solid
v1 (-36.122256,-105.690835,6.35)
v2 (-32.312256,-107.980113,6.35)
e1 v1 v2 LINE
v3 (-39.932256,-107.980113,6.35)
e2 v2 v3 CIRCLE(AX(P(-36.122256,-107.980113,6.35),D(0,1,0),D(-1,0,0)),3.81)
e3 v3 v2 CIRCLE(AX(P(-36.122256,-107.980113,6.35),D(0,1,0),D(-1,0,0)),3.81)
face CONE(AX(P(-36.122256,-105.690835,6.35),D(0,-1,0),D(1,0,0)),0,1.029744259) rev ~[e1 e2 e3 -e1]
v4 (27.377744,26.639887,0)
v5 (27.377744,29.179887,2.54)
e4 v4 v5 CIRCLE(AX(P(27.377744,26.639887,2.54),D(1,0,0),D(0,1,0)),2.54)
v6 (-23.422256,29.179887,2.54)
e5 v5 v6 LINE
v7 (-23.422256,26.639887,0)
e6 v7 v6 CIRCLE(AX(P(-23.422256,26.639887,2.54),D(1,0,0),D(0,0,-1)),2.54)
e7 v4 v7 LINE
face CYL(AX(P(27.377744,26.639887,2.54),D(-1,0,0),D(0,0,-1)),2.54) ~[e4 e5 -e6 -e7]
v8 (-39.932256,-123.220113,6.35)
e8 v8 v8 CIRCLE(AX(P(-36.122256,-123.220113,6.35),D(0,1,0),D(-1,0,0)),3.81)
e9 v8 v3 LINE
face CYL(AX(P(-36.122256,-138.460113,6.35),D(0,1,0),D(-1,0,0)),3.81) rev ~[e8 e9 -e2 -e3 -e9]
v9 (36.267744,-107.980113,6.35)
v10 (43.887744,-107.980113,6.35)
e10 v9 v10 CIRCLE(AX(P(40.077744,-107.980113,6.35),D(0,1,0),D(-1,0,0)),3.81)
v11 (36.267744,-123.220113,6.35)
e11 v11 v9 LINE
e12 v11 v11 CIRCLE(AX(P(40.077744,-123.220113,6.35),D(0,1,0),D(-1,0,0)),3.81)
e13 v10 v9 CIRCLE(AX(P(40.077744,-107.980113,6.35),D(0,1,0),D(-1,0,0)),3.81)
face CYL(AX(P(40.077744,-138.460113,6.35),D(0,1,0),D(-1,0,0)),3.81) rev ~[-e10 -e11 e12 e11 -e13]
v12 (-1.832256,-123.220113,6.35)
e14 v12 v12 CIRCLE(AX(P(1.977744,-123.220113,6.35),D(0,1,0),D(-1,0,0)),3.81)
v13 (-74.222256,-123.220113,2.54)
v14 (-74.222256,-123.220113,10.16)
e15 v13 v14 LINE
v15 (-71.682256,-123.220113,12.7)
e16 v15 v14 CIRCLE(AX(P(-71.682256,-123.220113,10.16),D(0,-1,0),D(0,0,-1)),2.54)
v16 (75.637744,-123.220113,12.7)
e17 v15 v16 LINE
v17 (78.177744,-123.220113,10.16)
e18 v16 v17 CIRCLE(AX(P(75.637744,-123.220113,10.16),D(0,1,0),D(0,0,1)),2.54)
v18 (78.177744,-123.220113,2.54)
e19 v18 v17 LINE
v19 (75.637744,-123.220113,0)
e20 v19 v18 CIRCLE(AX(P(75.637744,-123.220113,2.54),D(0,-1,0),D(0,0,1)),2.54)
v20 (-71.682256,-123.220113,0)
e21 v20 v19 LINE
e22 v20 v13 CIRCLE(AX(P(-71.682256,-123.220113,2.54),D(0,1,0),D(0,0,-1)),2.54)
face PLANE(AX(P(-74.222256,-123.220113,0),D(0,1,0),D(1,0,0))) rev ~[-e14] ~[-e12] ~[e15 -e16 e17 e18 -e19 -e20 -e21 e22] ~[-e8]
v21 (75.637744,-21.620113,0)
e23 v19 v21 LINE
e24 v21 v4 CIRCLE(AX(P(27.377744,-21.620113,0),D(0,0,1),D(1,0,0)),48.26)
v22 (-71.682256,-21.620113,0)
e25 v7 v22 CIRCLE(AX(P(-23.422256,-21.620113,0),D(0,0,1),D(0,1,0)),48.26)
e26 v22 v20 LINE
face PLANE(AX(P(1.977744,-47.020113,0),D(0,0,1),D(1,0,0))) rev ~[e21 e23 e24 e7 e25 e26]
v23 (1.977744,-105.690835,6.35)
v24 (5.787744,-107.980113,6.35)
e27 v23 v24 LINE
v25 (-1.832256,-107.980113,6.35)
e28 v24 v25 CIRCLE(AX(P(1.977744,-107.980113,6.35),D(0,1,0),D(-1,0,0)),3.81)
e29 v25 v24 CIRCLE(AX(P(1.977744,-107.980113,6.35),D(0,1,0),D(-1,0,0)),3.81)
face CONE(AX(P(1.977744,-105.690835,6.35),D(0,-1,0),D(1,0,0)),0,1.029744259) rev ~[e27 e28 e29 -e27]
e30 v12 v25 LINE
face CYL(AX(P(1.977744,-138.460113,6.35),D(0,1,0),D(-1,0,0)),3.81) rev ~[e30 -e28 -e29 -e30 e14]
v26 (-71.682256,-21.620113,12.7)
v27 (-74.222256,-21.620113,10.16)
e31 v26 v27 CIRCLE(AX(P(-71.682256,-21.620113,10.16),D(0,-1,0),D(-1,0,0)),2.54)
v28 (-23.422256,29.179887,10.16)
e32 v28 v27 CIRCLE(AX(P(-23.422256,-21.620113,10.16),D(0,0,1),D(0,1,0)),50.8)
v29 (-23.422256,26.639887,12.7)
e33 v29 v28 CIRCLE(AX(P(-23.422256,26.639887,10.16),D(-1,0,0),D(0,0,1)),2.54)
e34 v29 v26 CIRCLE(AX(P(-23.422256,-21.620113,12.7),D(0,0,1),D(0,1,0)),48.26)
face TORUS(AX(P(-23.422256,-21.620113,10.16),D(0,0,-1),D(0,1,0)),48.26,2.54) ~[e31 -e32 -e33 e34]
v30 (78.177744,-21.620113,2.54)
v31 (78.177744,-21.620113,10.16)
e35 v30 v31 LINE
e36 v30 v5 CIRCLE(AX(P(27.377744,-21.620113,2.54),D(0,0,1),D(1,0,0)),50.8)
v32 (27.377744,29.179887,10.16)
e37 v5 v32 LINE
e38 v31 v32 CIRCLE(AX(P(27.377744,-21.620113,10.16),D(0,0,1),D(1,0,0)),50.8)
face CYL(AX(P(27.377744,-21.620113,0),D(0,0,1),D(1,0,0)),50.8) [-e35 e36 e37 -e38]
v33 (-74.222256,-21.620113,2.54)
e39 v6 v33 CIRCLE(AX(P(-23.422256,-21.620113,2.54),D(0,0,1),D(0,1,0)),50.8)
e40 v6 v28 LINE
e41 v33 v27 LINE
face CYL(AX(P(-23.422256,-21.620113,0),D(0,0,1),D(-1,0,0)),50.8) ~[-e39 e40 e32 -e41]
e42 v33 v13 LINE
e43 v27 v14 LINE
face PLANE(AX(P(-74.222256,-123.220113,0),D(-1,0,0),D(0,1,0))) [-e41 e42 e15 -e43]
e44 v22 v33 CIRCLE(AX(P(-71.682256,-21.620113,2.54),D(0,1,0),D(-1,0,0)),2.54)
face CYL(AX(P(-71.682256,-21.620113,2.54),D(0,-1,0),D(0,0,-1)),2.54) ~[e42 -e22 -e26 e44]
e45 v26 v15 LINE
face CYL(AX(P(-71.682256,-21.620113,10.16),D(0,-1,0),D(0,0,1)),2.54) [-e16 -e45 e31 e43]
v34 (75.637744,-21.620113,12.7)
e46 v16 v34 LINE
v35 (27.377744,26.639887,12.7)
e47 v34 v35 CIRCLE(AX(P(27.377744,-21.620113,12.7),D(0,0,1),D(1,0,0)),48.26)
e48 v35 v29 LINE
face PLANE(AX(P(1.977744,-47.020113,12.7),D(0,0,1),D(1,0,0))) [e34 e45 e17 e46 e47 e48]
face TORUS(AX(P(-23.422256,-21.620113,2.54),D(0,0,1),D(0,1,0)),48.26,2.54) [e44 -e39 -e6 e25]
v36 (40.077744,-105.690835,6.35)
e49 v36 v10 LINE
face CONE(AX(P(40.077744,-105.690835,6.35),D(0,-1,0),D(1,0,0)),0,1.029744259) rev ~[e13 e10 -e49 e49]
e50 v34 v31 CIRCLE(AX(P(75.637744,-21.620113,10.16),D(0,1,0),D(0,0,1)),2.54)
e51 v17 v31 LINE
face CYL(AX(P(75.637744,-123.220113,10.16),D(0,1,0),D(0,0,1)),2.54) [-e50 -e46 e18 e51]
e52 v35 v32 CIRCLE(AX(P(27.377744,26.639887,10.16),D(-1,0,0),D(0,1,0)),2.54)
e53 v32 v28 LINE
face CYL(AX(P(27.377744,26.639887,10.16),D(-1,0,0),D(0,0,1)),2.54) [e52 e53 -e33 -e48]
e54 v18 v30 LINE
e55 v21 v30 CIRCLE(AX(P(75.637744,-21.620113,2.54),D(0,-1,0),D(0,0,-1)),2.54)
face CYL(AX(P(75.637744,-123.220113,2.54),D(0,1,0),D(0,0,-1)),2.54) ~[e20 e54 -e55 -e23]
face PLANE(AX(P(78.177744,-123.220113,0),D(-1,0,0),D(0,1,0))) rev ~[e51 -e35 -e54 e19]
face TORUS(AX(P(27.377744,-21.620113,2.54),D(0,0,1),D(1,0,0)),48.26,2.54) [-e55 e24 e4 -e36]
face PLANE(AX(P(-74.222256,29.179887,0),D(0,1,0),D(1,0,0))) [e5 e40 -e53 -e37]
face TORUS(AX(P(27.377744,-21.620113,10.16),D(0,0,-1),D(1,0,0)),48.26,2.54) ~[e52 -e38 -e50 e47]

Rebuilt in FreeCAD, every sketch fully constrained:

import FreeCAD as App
import Part
import Sketcher
from FreeCAD import Vector
Q = App.Units.Quantity


def edges_at(feature, points):
    """Names of the edges that pass closest to the given points."""
    edges = feature.Shape.Edges
    near = lambda p: min(range(len(edges)), key=lambda i: edges[i].distToShape(Part.Vertex(*p))[0])
    return sorted({f"Edge{near(p) + 1}" for p in points})

doc = App.newDocument("Part")
body = doc.addObject("PartDesign::Body", "Body")

# Sketch on XY plane
sketch1 = body.newObject("Sketcher::SketchObject", "Sketch")
sketch1.AttachmentSupport = (doc.getObject("XY_Plane"), [""])
sketch1.MapMode = "FlatFace"
sketch1.addGeometry(Part.LineSegment(Vector(-74, 29, 0), Vector(-74, -123, 0)), False)
sketch1.addGeometry(Part.LineSegment(Vector(-74, -123, 0), Vector(78, -123, 0)), False)
sketch1.addGeometry(Part.LineSegment(Vector(78, -123, 0), Vector(78, 29, 0)), False)
sketch1.addGeometry(Part.LineSegment(Vector(78, 29, 0), Vector(-74, 29, 0)), False)
sketch1.addConstraint(Sketcher.Constraint("Coincident", 0, 2, 1, 1))
sketch1.addConstraint(Sketcher.Constraint("Coincident", 1, 2, 2, 1))
sketch1.addConstraint(Sketcher.Constraint("Coincident", 2, 2, 3, 1))
sketch1.addConstraint(Sketcher.Constraint("Coincident", 3, 2, 0, 1))
sketch1.addConstraint(Sketcher.Constraint("Vertical", 0))
sketch1.addConstraint(Sketcher.Constraint("Horizontal", 1))
sketch1.addConstraint(Sketcher.Constraint("Vertical", 2))
sketch1.addConstraint(Sketcher.Constraint("Horizontal", 3))
sketch1.addConstraint(Sketcher.Constraint("Equal", 3, 0))
sketch1.addConstraint(Sketcher.Constraint("DistanceX", 1, 1, 1, 2, Q("6 in")))
sketch1.addConstraint(Sketcher.Constraint("DistanceX", 0, 2, -1, 1, 74.222256))
sketch1.addConstraint(Sketcher.Constraint("DistanceY", 0, 2, -1, 1, 123.220113))
pad1 = body.newObject("PartDesign::Pad", "Pad")
pad1.Profile = sketch1
pad1.Length = Q("0.5 in")
doc.recompute()

fillet = body.newObject("PartDesign::Fillet", "Fillet")
fillet.Base = (pad1, edges_at(pad1, [(-74.222, 29.18, 6.35), (78.178, 29.18, 6.35)]))
fillet.Radius = Q("2 in")

# Sketch on XZ plane
sketch2 = body.newObject("Sketcher::SketchObject", "Sketch001")
sketch2.AttachmentSupport = (doc.getObject("XZ_Plane"), [""])
sketch2.MapMode = "FlatFace"
sketch2.AttachmentOffset = App.Placement(Vector(0, 0, 123.220113), App.Rotation())
sketch2.addGeometry(Part.Circle(Vector(40.1, 6.3, 0), Vector(0, 0, 1), 3.8), False)
sketch2.addGeometry(Part.Circle(Vector(2, 6.3, 0), Vector(0, 0, 1), 3.8), False)
sketch2.addGeometry(Part.Circle(Vector(-36.1, 6.3, 0), Vector(0, 0, 1), 3.8), False)
sketch2.addConstraint(Sketcher.Constraint("Equal", 0, 1))
sketch2.addConstraint(Sketcher.Constraint("Equal", 1, 2))
sketch2.addConstraint(Sketcher.Constraint("Horizontal", 0, 3, 1, 3))
sketch2.addConstraint(Sketcher.Constraint("Horizontal", 1, 3, 2, 3))
sketch2.addConstraint(Sketcher.Constraint("Diameter", 0, Q("0.3 in")))
sketch2.addConstraint(Sketcher.Constraint("DistanceX", 2, 3, 0, 3, Q("3 in")))
sketch2.addConstraint(Sketcher.Constraint("DistanceX", 1, 3, 0, 3, Q("1.5 in")))
sketch2.addConstraint(Sketcher.Constraint("DistanceY", -1, 1, 0, 3, Q("0.25 in")))
sketch2.addConstraint(Sketcher.Constraint("DistanceX", -1, 1, 0, 3, 40.077744))
doc.recompute()
hole = body.newObject("PartDesign::Hole", "Hole")
hole.Profile = sketch2
hole.ThreadType = "None"
hole.Diameter = Q("0.3 in")
hole.DepthType = "Dimension"
hole.Depth = Q("0.6 in")
hole.DrillPoint = "Angled"
hole.DrillPointAngle = 118
doc.recompute()

fillet2 = body.newObject("PartDesign::Fillet", "Fillet001")
fillet2.Base = (hole, edges_at(hole, [(78.178, -72.42, 12.7), (78.178, -72.42, 0)]))
fillet2.Radius = Q("0.1 in")

doc.recompute()
